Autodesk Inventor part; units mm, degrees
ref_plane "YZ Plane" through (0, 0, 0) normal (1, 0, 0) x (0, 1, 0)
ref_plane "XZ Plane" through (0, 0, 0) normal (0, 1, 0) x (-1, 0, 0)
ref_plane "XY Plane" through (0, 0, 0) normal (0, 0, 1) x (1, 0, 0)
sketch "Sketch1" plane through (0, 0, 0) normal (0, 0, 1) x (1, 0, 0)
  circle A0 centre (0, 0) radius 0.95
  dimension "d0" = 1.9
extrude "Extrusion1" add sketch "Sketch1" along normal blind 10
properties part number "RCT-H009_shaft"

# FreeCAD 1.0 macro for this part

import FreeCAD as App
import Part
import Sketcher

doc = App.newDocument("Part")
body = doc.addObject("PartDesign::Body", "Body")

sketch1 = body.newObject("Sketcher::SketchObject", "Sketch")
sketch1.AttachmentSupport = (doc.getObject("XY_Plane"), [""])
sketch1.MapMode = "FlatFace"
sketch1.addGeometry(Part.Circle(App.Vector(0, 0, 0), App.Vector(0, 0, 1), 0.9), False)
sketch1.addConstraint([
    Sketcher.Constraint("Coincident", 0, 3, -1, 1),
    Sketcher.Constraint("Diameter", 0, 1.9),
])
pad1 = body.newObject("PartDesign::Pad", "Pad")
pad1.Profile = sketch1
pad1.Length = 10

doc.recompute()
